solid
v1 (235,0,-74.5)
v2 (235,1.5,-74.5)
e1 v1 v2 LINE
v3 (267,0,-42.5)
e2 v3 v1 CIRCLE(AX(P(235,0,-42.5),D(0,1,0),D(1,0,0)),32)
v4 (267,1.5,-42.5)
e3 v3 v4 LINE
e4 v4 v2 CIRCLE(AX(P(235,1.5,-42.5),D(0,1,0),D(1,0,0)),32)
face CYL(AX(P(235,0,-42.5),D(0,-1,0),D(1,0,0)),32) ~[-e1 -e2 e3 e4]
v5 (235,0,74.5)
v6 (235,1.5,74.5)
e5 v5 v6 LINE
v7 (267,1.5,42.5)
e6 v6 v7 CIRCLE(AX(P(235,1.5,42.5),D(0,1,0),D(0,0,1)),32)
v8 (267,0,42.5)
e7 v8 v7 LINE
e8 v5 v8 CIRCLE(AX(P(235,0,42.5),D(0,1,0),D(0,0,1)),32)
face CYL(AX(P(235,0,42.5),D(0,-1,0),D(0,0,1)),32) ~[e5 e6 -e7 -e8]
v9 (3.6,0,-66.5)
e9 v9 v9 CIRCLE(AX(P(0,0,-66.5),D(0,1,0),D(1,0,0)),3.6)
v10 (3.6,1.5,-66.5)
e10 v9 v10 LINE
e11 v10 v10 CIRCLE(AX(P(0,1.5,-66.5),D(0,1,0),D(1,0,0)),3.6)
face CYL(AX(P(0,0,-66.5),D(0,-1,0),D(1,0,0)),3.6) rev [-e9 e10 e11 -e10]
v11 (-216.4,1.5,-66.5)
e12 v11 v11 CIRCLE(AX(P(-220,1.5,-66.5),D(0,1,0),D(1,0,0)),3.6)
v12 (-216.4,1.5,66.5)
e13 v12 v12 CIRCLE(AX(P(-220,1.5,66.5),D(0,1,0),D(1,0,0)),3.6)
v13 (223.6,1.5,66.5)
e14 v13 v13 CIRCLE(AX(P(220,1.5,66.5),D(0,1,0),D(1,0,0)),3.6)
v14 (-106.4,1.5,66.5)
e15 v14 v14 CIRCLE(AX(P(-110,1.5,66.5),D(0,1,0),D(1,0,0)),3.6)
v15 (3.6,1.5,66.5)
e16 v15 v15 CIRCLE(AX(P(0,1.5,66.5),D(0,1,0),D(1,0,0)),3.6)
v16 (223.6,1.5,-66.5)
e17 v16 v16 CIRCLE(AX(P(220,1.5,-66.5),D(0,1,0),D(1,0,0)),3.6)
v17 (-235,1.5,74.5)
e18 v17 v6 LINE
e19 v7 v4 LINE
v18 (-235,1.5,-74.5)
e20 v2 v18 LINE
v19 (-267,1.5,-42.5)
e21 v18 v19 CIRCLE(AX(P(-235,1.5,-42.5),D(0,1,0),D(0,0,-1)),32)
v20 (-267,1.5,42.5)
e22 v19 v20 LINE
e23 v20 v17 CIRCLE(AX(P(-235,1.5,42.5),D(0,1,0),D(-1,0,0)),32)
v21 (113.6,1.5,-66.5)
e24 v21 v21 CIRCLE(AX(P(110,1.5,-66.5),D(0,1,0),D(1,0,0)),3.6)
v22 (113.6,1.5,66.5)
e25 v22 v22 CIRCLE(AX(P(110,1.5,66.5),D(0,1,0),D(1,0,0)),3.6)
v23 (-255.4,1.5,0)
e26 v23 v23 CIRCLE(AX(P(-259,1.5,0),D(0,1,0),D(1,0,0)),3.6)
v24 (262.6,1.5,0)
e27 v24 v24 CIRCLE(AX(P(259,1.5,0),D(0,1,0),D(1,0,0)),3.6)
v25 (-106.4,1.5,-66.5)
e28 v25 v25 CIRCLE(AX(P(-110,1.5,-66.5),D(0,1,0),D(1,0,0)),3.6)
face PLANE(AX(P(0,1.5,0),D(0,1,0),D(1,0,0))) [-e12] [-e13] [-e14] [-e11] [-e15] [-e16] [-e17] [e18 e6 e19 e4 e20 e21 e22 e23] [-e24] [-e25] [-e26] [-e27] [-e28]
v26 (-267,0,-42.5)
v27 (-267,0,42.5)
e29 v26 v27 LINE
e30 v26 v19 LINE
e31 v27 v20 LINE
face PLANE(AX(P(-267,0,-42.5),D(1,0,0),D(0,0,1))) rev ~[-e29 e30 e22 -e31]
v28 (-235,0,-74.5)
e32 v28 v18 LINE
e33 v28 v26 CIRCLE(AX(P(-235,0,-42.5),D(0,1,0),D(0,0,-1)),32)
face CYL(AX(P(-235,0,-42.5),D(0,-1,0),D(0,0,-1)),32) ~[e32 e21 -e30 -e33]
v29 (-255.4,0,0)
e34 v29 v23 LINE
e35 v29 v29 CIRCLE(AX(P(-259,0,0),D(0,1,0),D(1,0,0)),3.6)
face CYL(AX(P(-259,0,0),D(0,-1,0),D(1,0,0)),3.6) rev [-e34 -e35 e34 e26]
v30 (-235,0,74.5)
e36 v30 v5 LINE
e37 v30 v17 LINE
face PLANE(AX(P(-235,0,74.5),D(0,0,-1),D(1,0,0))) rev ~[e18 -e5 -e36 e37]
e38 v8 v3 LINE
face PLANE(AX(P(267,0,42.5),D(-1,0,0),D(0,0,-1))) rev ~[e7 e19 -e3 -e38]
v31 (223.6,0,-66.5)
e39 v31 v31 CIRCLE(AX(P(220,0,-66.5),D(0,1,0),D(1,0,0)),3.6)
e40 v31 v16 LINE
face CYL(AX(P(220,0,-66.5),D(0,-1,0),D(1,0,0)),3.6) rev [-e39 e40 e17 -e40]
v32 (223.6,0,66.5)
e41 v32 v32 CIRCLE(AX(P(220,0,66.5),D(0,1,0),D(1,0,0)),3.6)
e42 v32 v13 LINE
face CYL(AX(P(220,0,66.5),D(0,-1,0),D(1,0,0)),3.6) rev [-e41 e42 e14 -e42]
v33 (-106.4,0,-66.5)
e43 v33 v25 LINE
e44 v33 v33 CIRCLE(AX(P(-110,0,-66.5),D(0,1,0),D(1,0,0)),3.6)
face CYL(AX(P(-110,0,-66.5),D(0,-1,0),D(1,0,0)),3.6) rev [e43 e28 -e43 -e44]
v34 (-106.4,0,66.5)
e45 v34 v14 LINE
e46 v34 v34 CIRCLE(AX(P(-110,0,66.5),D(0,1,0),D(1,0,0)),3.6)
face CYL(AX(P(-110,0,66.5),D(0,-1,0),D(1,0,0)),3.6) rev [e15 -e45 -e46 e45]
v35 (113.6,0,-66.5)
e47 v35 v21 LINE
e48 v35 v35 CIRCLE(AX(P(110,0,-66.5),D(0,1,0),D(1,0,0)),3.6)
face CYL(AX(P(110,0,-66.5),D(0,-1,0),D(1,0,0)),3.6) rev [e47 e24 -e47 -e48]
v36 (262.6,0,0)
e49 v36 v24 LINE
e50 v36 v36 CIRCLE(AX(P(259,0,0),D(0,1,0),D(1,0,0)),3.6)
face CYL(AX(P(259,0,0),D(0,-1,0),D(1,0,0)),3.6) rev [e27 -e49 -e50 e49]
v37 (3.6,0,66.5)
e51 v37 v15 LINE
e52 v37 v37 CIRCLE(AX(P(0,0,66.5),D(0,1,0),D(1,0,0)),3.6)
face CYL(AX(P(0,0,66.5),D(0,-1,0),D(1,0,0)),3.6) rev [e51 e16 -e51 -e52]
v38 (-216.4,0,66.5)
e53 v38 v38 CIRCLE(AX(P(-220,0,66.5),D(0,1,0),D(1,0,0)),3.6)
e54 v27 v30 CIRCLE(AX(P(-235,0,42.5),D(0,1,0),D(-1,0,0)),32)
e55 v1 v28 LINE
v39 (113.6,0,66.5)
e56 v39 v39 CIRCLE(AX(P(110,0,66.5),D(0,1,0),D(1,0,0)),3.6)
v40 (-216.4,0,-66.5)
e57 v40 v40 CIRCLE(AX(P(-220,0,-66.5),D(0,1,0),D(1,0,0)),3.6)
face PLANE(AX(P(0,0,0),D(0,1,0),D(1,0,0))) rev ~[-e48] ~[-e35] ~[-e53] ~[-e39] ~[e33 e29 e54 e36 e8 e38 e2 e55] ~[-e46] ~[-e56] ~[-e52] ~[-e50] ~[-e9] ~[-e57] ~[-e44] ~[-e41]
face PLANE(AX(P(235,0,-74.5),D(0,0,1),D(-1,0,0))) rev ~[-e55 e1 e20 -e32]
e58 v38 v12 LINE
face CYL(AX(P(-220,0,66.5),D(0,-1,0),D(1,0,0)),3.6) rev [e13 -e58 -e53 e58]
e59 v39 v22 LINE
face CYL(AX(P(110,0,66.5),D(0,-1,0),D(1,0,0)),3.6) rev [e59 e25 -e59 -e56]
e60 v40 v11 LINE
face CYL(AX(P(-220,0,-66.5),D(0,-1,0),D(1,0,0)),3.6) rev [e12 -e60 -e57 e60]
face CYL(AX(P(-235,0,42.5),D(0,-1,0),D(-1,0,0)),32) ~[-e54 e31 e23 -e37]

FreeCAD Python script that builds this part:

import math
import FreeCAD as App
import Part
import Sketcher

V = App.Vector
Q = App.Units.Quantity

doc = App.newDocument("Part")
body = doc.addObject("PartDesign::Body", "Body")

sketch1 = doc.addObject("Sketcher::SketchObject", "Sketch")
body.addObject(sketch1)
sketch1.AttachmentSupport = (doc.XZ_Plane, [""])
sketch1.MapMode = "FlatFace"
sketch1.addGeometry([
    Part.LineSegment(V(-267, -42.5, 0), V(-267, 42.5, 0)),
    Part.ArcOfCircle(Part.Circle(V(-235, 42.5, 0), V(0, 0, 1), 32), math.radians(90), math.radians(180)),
    Part.LineSegment(V(-235, 74.5, 0), V(235, 74.5, 0)),
    Part.ArcOfCircle(Part.Circle(V(235, 42.5, 0), V(0, 0, 1), 32), math.radians(0), math.radians(90)),
    Part.LineSegment(V(267, 42.5, 0), V(267, -42.5, 0)),
    Part.ArcOfCircle(Part.Circle(V(235, -42.5, 0), V(0, 0, 1), 32), math.radians(-90), math.radians(0)),
    Part.LineSegment(V(235, -74.5, 0), V(-235, -74.5, 0)),
    Part.ArcOfCircle(Part.Circle(V(-235, -42.5, 0), V(0, 0, 1), 32), math.radians(180), math.radians(270)),
    Part.Circle(V(-220, 66.5, 0), V(0, 0, 1), 3.6),
    Part.Circle(V(-110, 66.5, 0), V(0, 0, 1), 3.6),
    Part.Circle(V(0, 66.5, 0), V(0, 0, 1), 3.6),
    Part.Circle(V(110, 66.5, 0), V(0, 0, 1), 3.6),
    Part.Circle(V(220, 66.5, 0), V(0, 0, 1), 3.6),
    Part.Circle(V(-259, 0, 0), V(0, 0, 1), 3.6),
    Part.Circle(V(-220, -66.5, 0), V(0, 0, 1), 3.6),
    Part.Circle(V(-110, -66.5, 0), V(0, 0, 1), 3.6),
    Part.Circle(V(259, 0, 0), V(0, 0, 1), 3.6),
    Part.Circle(V(0, -66.5, 0), V(0, 0, 1), 3.6),
    Part.Circle(V(110, -66.5, 0), V(0, 0, 1), 3.6),
    Part.Circle(V(220, -66.5, 0), V(0, 0, 1), 3.6),
], False)
sketch1.addConstraint([
    Sketcher.Constraint("Tangent", 0, 2, 1, 2),
    Sketcher.Constraint("Tangent", 1, 1, 2, 1),
    Sketcher.Constraint("Tangent", 2, 2, 3, 2),
    Sketcher.Constraint("Tangent", 3, 1, 4, 1),
    Sketcher.Constraint("Tangent", 4, 2, 5, 2),
    Sketcher.Constraint("Tangent", 5, 1, 6, 1),
    Sketcher.Constraint("Tangent", 6, 2, 7, 2),
    Sketcher.Constraint("Tangent", 7, 1, 0, 1),
    Sketcher.Constraint("Vertical", 0),
    Sketcher.Constraint("Horizontal", 2),
    Sketcher.Constraint("Vertical", 4),
    Sketcher.Constraint("Horizontal", 6),
    Sketcher.Constraint("Equal", 1, 3),
    Sketcher.Constraint("Equal", 3, 5),
    Sketcher.Constraint("Equal", 5, 7),
    Sketcher.Constraint("Equal", 8, 9),
    Sketcher.Constraint("Equal", 9, 10),
    Sketcher.Constraint("Equal", 10, 11),
    Sketcher.Constraint("Equal", 11, 12),
    Sketcher.Constraint("Equal", 12, 13),
    Sketcher.Constraint("Equal", 13, 14),
    Sketcher.Constraint("Equal", 14, 15),
    Sketcher.Constraint("Equal", 15, 16),
    Sketcher.Constraint("Equal", 16, 17),
    Sketcher.Constraint("Equal", 17, 18),
    Sketcher.Constraint("Equal", 18, 19),
    Sketcher.Constraint("Symmetric", 1, 3, 5, 3, -1, 1),
    Sketcher.Constraint("Symmetric", 12, 3, 14, 3, -1, 1),
    Sketcher.Constraint("Symmetric", 11, 3, 15, 3, -1, 1),
    Sketcher.Constraint("Symmetric", 13, 3, 16, 3, -1, 1),
    Sketcher.Constraint("Symmetric", 10, 3, 17, 3, -1, 1),
    Sketcher.Constraint("Symmetric", 9, 3, 18, 3, -1, 1),
    Sketcher.Constraint("Symmetric", 8, 3, 19, 3, -1, 1),
    Sketcher.Constraint("Symmetric", 9, 3, 11, 3, -2),
    Sketcher.Constraint("Symmetric", 8, 3, 12, 3, -2),
    Sketcher.Constraint("PointOnObject", 10, 3, -2),
    Sketcher.Constraint("PointOnObject", 13, 3, -1),
    Sketcher.Constraint("Horizontal", 8, 3, 9, 3),
    Sketcher.Constraint("Horizontal", 9, 3, 10, 3),
    Sketcher.Constraint("Radius", 1, Q("32 mm")),
    Sketcher.Constraint("Diameter", 8, Q("7.2 mm")),
    Sketcher.Constraint("DistanceX", 2, 1, 2, 2, Q("470 mm")),
    Sketcher.Constraint("DistanceY", 0, 1, 0, 2, Q("85 mm")),
    Sketcher.Constraint("DistanceX", 8, 3, -1, 1, Q("220 mm")),
    Sketcher.Constraint("DistanceX", 9, 3, -1, 1, Q("110 mm")),
    Sketcher.Constraint("DistanceX", 13, 3, -1, 1, Q("259 mm")),
    Sketcher.Constraint("DistanceY", 1, 3, 8, 3, Q("24 mm")),
])
pad1 = doc.addObject("PartDesign::Pad", "Pad")
body.addObject(pad1)
pad1.Profile = sketch1
pad1.Length = 1.5
pad1.Reversed = True

doc.recompute()
